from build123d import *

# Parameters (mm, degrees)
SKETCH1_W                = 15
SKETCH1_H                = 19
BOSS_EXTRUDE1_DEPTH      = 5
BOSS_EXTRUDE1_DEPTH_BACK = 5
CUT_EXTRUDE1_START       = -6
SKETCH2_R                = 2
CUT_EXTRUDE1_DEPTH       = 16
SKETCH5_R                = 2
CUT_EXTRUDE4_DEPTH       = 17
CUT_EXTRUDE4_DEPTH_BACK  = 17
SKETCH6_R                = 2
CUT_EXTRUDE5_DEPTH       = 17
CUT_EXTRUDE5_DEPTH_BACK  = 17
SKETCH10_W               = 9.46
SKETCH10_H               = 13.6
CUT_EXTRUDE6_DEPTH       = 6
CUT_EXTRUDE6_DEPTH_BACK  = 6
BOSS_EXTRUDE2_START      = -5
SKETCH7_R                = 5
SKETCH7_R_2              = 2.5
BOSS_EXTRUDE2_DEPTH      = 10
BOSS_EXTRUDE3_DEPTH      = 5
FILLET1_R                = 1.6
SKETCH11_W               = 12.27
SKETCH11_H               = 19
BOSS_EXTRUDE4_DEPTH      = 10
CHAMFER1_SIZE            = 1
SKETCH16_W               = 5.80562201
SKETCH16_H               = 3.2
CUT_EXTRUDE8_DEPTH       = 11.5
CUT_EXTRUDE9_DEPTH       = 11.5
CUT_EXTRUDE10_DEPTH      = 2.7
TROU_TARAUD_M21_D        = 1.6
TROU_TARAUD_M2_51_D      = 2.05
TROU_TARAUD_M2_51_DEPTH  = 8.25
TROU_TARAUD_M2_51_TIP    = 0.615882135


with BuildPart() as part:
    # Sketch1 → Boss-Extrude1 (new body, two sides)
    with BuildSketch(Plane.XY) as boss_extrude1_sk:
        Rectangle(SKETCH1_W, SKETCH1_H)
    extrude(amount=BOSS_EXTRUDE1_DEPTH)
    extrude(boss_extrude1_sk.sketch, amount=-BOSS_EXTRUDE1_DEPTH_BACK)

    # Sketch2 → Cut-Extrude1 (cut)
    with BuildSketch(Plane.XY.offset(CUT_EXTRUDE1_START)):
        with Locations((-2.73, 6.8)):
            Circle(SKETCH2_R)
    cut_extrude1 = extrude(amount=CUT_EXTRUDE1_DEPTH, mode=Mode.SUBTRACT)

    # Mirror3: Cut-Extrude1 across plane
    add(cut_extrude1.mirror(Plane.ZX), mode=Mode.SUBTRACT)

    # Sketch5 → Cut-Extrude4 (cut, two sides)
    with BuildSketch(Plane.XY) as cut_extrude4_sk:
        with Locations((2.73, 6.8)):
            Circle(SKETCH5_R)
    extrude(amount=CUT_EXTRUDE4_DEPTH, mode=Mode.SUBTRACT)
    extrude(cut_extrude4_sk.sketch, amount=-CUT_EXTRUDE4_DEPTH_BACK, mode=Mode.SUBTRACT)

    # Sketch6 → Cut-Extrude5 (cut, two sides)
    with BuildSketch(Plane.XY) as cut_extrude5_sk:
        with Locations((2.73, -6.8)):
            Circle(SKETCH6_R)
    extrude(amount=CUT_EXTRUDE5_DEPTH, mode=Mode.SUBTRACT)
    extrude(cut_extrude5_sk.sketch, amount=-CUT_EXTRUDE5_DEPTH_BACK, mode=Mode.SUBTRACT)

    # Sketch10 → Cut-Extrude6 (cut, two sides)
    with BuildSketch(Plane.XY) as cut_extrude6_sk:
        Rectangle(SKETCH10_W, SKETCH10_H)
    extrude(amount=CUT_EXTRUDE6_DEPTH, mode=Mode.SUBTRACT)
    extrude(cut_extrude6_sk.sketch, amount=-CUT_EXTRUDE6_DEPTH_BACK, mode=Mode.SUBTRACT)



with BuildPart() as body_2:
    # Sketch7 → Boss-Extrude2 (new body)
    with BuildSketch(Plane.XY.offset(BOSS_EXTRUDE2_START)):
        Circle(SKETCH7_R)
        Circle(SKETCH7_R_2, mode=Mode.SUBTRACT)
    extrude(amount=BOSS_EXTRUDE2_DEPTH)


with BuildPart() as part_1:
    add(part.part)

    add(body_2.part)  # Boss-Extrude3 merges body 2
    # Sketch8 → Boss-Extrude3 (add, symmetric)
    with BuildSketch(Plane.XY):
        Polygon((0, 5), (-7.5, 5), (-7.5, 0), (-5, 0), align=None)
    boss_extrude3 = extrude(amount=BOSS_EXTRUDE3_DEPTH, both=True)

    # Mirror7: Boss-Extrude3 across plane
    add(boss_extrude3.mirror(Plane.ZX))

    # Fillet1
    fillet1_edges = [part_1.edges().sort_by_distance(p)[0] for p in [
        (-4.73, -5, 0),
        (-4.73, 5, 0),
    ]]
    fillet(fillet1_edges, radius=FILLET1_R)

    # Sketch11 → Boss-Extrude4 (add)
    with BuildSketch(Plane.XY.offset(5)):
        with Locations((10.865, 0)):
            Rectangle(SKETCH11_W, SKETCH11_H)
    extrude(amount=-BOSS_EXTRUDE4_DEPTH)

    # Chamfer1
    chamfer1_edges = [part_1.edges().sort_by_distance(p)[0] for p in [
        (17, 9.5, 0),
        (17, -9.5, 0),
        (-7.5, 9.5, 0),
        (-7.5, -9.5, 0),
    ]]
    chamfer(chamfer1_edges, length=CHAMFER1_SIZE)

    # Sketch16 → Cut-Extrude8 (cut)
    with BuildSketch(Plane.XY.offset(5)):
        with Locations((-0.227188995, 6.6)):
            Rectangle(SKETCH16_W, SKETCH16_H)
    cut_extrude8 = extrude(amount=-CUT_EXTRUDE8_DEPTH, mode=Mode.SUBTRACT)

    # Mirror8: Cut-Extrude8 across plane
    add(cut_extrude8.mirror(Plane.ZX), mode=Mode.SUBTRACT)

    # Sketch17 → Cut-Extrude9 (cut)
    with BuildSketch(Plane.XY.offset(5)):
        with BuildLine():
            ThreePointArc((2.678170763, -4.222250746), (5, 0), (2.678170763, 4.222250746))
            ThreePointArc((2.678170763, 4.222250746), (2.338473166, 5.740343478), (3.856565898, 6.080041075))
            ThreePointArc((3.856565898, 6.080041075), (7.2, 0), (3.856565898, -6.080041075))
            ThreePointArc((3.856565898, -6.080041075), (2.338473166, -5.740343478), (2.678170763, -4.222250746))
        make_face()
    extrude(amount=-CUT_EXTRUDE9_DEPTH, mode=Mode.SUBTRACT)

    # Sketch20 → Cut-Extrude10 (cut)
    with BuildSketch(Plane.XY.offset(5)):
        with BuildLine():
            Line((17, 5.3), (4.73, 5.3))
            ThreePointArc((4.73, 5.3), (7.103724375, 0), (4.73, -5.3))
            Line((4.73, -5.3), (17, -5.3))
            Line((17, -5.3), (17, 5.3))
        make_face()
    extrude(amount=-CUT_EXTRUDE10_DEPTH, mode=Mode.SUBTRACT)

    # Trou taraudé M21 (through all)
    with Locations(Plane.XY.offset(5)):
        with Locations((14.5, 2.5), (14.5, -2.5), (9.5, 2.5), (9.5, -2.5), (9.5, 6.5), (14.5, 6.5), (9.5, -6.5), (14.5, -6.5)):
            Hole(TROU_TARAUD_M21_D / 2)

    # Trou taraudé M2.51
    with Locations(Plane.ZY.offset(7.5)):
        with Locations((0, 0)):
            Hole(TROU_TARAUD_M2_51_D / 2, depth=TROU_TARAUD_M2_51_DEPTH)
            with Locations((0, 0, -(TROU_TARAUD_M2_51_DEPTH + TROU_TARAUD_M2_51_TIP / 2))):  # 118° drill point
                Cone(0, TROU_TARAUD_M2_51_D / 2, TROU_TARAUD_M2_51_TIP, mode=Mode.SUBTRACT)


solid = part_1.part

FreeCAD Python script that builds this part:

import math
import FreeCAD as App
import Part
import Sketcher

V = App.Vector
Q = App.Units.Quantity


def edges_at(feature, points):
    """Names of the edges that pass closest to the given points."""
    edges = feature.Shape.Edges
    near = lambda p: min(range(len(edges)), key=lambda i: edges[i].distToShape(Part.Vertex(*p))[0])
    return sorted({f"Edge{near(p) + 1}" for p in points})

doc = App.newDocument("Part")
body = doc.addObject("PartDesign::Body", "Body")

sketch1 = body.newObject("Sketcher::SketchObject", "Sketch")
sketch1.AttachmentSupport = (doc.getObject("XY_Plane"), [""])
sketch1.MapMode = "FlatFace"
sketch1.addGeometry([
    Part.LineSegment(V(-8, 10, 0), V(-8, -10, 0)),
    Part.LineSegment(V(-8, -10, 0), V(8, -10, 0)),
    Part.LineSegment(V(8, -10, 0), V(8, 10, 0)),
    Part.LineSegment(V(8, 10, 0), V(-8, 10, 0)),
], False)
sketch1.addConstraint([
    Sketcher.Constraint("Coincident", 0, 2, 1, 1),
    Sketcher.Constraint("Coincident", 1, 2, 2, 1),
    Sketcher.Constraint("Coincident", 2, 2, 3, 1),
    Sketcher.Constraint("Coincident", 3, 2, 0, 1),
    Sketcher.Constraint("Vertical", 0),
    Sketcher.Constraint("Horizontal", 1),
    Sketcher.Constraint("Vertical", 2),
    Sketcher.Constraint("Horizontal", 3),
    Sketcher.Constraint("Symmetric", 0, 2, 2, 2, -1, 1),
    Sketcher.Constraint("DistanceX", 1, 1, 1, 2, 15.0),
    Sketcher.Constraint("DistanceY", 0, 2, 0, 1, 19.0),
])
pad1 = body.newObject("PartDesign::Pad", "Pad")
pad1.Profile = sketch1
pad1.Type = "TwoLengths"
pad1.Length = 5
pad1.Length2 = 5

sketch2 = body.newObject("Sketcher::SketchObject", "Sketch001")
sketch2.AttachmentSupport = (doc.getObject("XY_Plane"), [""])
sketch2.MapMode = "FlatFace"
sketch2.AttachmentOffset = App.Placement(V(0, 0, -6), App.Rotation())
sketch2.addGeometry(Part.Circle(V(-2.7, 6.8, 0), V(0, 0, 1), 2), False)
sketch2.addConstraint([
    Sketcher.Constraint("Diameter", 0, 4.0),
    Sketcher.Constraint("DistanceY", -1, 1, 0, 3, 6.8),
    Sketcher.Constraint("DistanceX", 0, 3, -1, 1, 2.73),
])
pocket1 = body.newObject("PartDesign::Pocket", "Pocket")
pocket1.Profile = sketch2
pocket1.Length = 16
pocket1.Reversed = True
doc.recompute()

mirrored = body.newObject("PartDesign::Mirrored", "Mirrored")
mirrored.Originals = [pocket1]
mirrored.MirrorPlane = (doc.getObject("XZ_Plane"), [""])
body.Tip = mirrored

sketch3 = body.newObject("Sketcher::SketchObject", "Sketch002")
sketch3.AttachmentSupport = (doc.getObject("XY_Plane"), [""])
sketch3.MapMode = "FlatFace"
sketch3.addGeometry(Part.Circle(V(2.7, 6.8, 0), V(0, 0, 1), 2), False)
sketch3.addConstraint([
    Sketcher.Constraint("Diameter", 0, 4.0),
    Sketcher.Constraint("DistanceY", -1, 1, 0, 3, 6.8),
    Sketcher.Constraint("DistanceX", -1, 1, 0, 3, 2.73),
])
pocket2 = body.newObject("PartDesign::Pocket", "Pocket001")
pocket2.Profile = sketch3
pocket2.Type = "ThroughAll"
pocket2.Midplane = True

sketch4 = body.newObject("Sketcher::SketchObject", "Sketch003")
sketch4.AttachmentSupport = (doc.getObject("XY_Plane"), [""])
sketch4.MapMode = "FlatFace"
sketch4.addGeometry(Part.Circle(V(2.7, -6.8, 0), V(0, 0, 1), 2), False)
sketch4.addConstraint([
    Sketcher.Constraint("Diameter", 0, 4.0),
    Sketcher.Constraint("DistanceY", 0, 3, -1, 1, 6.8),
    Sketcher.Constraint("DistanceX", -1, 1, 0, 3, 2.73),
])
pocket3 = body.newObject("PartDesign::Pocket", "Pocket002")
pocket3.Profile = sketch4
pocket3.Type = "ThroughAll"
pocket3.Midplane = True

sketch5 = body.newObject("Sketcher::SketchObject", "Sketch004")
sketch5.AttachmentSupport = (doc.getObject("XY_Plane"), [""])
sketch5.MapMode = "FlatFace"
sketch5.addGeometry([
    Part.LineSegment(V(-5, 7, 0), V(-5, -7, 0)),
    Part.LineSegment(V(-5, -7, 0), V(5, -7, 0)),
    Part.LineSegment(V(5, -7, 0), V(5, 7, 0)),
    Part.LineSegment(V(5, 7, 0), V(-5, 7, 0)),
], False)
sketch5.addConstraint([
    Sketcher.Constraint("Coincident", 0, 2, 1, 1),
    Sketcher.Constraint("Coincident", 1, 2, 2, 1),
    Sketcher.Constraint("Coincident", 2, 2, 3, 1),
    Sketcher.Constraint("Coincident", 3, 2, 0, 1),
    Sketcher.Constraint("Vertical", 0),
    Sketcher.Constraint("Horizontal", 1),
    Sketcher.Constraint("Vertical", 2),
    Sketcher.Constraint("Horizontal", 3),
    Sketcher.Constraint("Symmetric", 0, 2, 2, 2, -1, 1),
    Sketcher.Constraint("DistanceY", 0, 2, 0, 1, 13.6),
    Sketcher.Constraint("DistanceX", 1, 1, 1, 2, 9.46),
])
pocket4 = body.newObject("PartDesign::Pocket", "Pocket003")
pocket4.Profile = sketch5
pocket4.Type = "ThroughAll"
pocket4.Midplane = True
body2 = doc.addObject("PartDesign::Body", "Body001")

sketch6 = body2.newObject("Sketcher::SketchObject", "Sketch005")
sketch6.AttachmentSupport = (doc.getObject("XY_Plane001"), [""])
sketch6.MapMode = "FlatFace"
sketch6.AttachmentOffset = App.Placement(V(0, 0, -5), App.Rotation())
sketch6.addGeometry([
    Part.Circle(V(0, 0, 0), V(0, 0, 1), 5),
    Part.Circle(V(0, 0, 0), V(0, 0, 1), 2.5),
], False)
sketch6.addConstraint([
    Sketcher.Constraint("Coincident", 0, 3, -1, 1),
    Sketcher.Constraint("Coincident", 1, 3, -1, 1),
    Sketcher.Constraint("Diameter", 0, 10.0),
    Sketcher.Constraint("Diameter", 1, 5.0),
])
pad2 = body2.newObject("PartDesign::Pad", "Pad001")
pad2.Profile = sketch6
pad2.Length = 10
doc.recompute()

boolean = body.newObject("PartDesign::Boolean", "Boolean")
boolean.Type = "Fuse"
boolean.addObjects([body2])

sketch7 = body.newObject("Sketcher::SketchObject", "Sketch006")
sketch7.AttachmentSupport = (doc.getObject("XY_Plane"), [""])
sketch7.MapMode = "FlatFace"
sketch7.addGeometry([
    Part.LineSegment(V(0, 5, 0), V(-7.5, 5, 0)),
    Part.LineSegment(V(-7.5, 5, 0), V(-7.5, 0, 0)),
    Part.LineSegment(V(-7.5, 0, 0), V(-5, 0, 0)),
    Part.LineSegment(V(-5, 0, 0), V(0, 5, 0)),
], False)
sketch7.addConstraint([
    Sketcher.Constraint("Coincident", 0, 2, 1, 1),
    Sketcher.Constraint("Coincident", 1, 2, 2, 1),
    Sketcher.Constraint("Coincident", 2, 2, 3, 1),
    Sketcher.Constraint("Coincident", 3, 2, 0, 1),
    Sketcher.Constraint("Horizontal", 0),
    Sketcher.Constraint("Vertical", 1),
    Sketcher.Constraint("Horizontal", 2),
    Sketcher.Constraint("PointOnObject", 1, 2, -1),
    Sketcher.Constraint("PointOnObject", 3, 2, -2),
    Sketcher.Constraint("DistanceY", 1, 2, 1, 1, 5.0),
    Sketcher.Constraint("Angle", 3, Q("45 deg")),
    Sketcher.Constraint("DistanceX", 0, 2, 0, 1, 7.5),
])
pad3 = body.newObject("PartDesign::Pad", "Pad002")
pad3.Profile = sketch7
pad3.Length = 10
pad3.Midplane = True
doc.recompute()

mirrored2 = body.newObject("PartDesign::Mirrored", "Mirrored001")
mirrored2.Originals = [pad3]
mirrored2.MirrorPlane = (doc.getObject("XZ_Plane"), [""])
body.Tip = mirrored2
doc.recompute()

fillet = body.newObject("PartDesign::Fillet", "Fillet")
fillet.Base = (mirrored2, edges_at(mirrored2, [(-4.73, -5, 0), (-4.73, 5, 0)]))
fillet.Radius = 1.6

sketch8 = body.newObject("Sketcher::SketchObject", "Sketch007")
sketch8.AttachmentSupport = (doc.getObject("XY_Plane"), [""])
sketch8.MapMode = "FlatFace"
sketch8.AttachmentOffset = App.Placement(V(0, 0, 5), App.Rotation())
sketch8.addGeometry([
    Part.LineSegment(V(5, 10, 0), V(5, -10, 0)),
    Part.LineSegment(V(5, -10, 0), V(17, -10, 0)),
    Part.LineSegment(V(17, -10, 0), V(17, 10, 0)),
    Part.LineSegment(V(17, 10, 0), V(5, 10, 0)),
], False)
sketch8.addConstraint([
    Sketcher.Constraint("Coincident", 0, 2, 1, 1),
    Sketcher.Constraint("Coincident", 1, 2, 2, 1),
    Sketcher.Constraint("Coincident", 2, 2, 3, 1),
    Sketcher.Constraint("Coincident", 3, 2, 0, 1),
    Sketcher.Constraint("Vertical", 0),
    Sketcher.Constraint("Horizontal", 1),
    Sketcher.Constraint("Vertical", 2),
    Sketcher.Constraint("Horizontal", 3),
    Sketcher.Constraint("DistanceY", 0, 2, 0, 1, 19.0),
    Sketcher.Constraint("DistanceX", -1, 1, 1, 2, 17.0),
    Sketcher.Constraint("DistanceX", 1, 1, 1, 2, 12.27),
    Sketcher.Constraint("DistanceY", 0, 2, -1, 1, 9.5),
])
pad4 = body.newObject("PartDesign::Pad", "Pad003")
pad4.Profile = sketch8
pad4.Length = 10
pad4.Reversed = True
doc.recompute()

chamfer = body.newObject("PartDesign::Chamfer", "Chamfer")
chamfer.Base = (pad4, edges_at(pad4, [
    (17, 9.5, 0),
    (17, -9.5, 0),
    (-7.5, 9.5, 0),
    (-7.5, -9.5, 0),
]))
chamfer.Size = 1

sketch9 = body.newObject("Sketcher::SketchObject", "Sketch008")
sketch9.AttachmentSupport = (doc.getObject("XY_Plane"), [""])
sketch9.MapMode = "FlatFace"
sketch9.AttachmentOffset = App.Placement(V(0, 0, 5), App.Rotation())
sketch9.addGeometry([
    Part.LineSegment(V(-3.1, 8.2, 0), V(-3.1, 5, 0)),
    Part.LineSegment(V(-3.1, 5, 0), V(2.7, 5, 0)),
    Part.LineSegment(V(2.7, 5, 0), V(2.7, 8.2, 0)),
    Part.LineSegment(V(2.7, 8.2, 0), V(-3.1, 8.2, 0)),
], False)
sketch9.addConstraint([
    Sketcher.Constraint("Coincident", 0, 2, 1, 1),
    Sketcher.Constraint("Coincident", 1, 2, 2, 1),
    Sketcher.Constraint("Coincident", 2, 2, 3, 1),
    Sketcher.Constraint("Coincident", 3, 2, 0, 1),
    Sketcher.Constraint("Vertical", 0),
    Sketcher.Constraint("Horizontal", 1),
    Sketcher.Constraint("Vertical", 2),
    Sketcher.Constraint("Horizontal", 3),
    Sketcher.Constraint("DistanceY", 0, 2, 0, 1, 3.2),
    Sketcher.Constraint("DistanceY", -1, 1, 0, 2, 5.0),
    Sketcher.Constraint("DistanceX", 0, 2, -1, 1, 3.13),
    Sketcher.Constraint("DistanceX", 1, 1, 1, 2, 5.805622),
])
pocket5 = body.newObject("PartDesign::Pocket", "Pocket004")
pocket5.Profile = sketch9
pocket5.Length = 11.5
doc.recompute()

mirrored3 = body.newObject("PartDesign::Mirrored", "Mirrored002")
mirrored3.Originals = [pocket5]
mirrored3.MirrorPlane = (doc.getObject("XZ_Plane"), [""])
body.Tip = mirrored3

sketch10 = body.newObject("Sketcher::SketchObject", "Sketch009")
sketch10.AttachmentSupport = (doc.getObject("XY_Plane"), [""])
sketch10.MapMode = "FlatFace"
sketch10.AttachmentOffset = App.Placement(V(0, 0, 5), App.Rotation())
sketch10.addGeometry([
    Part.ArcOfCircle(Part.Circle(V(0, 0, 0), V(0, 0, 1), 5), math.radians(-58), math.radians(58)),
    Part.ArcOfCircle(Part.Circle(V(3.3, -5.2, 0), V(0, 0, 1), 1.1), math.radians(122), math.radians(302)),
    Part.ArcOfCircle(Part.Circle(V(0, 0, 0), V(0, 0, 1), 7.2), math.radians(-58), math.radians(58)),
    Part.ArcOfCircle(Part.Circle(V(3.3, 5.2, 0), V(0, 0, 1), 1.1), math.radians(58), math.radians(238)),
], False)
sketch10.addConstraint([
    Sketcher.Constraint("Tangent", 0, 1, 1, 1),
    Sketcher.Constraint("Tangent", 1, 2, 2, 1),
    Sketcher.Constraint("Tangent", 2, 2, 3, 1),
    Sketcher.Constraint("Tangent", 3, 2, 0, 2),
    Sketcher.Constraint("Coincident", 0, 3, -1, 1),
    Sketcher.Constraint("Coincident", 2, 3, -1, 1),
    Sketcher.Constraint("Vertical", 1, 3, 3, 3),
    Sketcher.Constraint("Radius", 0, 5.0),
    Sketcher.Constraint("Radius", 1, 1.1),
    Sketcher.Constraint("DistanceY", 0, 1, 3, 2, 8.444501),
])
pocket6 = body.newObject("PartDesign::Pocket", "Pocket005")
pocket6.Profile = sketch10
pocket6.Length = 11.5

sketch11 = body.newObject("Sketcher::SketchObject", "Sketch010")
sketch11.AttachmentSupport = (doc.getObject("XY_Plane"), [""])
sketch11.MapMode = "FlatFace"
sketch11.AttachmentOffset = App.Placement(V(0, 0, 5), App.Rotation())
sketch11.addGeometry([
    Part.LineSegment(V(17, 5, 0), V(5, 5, 0)),
    Part.ArcOfCircle(Part.Circle(V(0, 0, 0), V(0, 0, 1), 7), math.radians(-48), math.radians(48)),
    Part.LineSegment(V(5, -5, 0), V(17, -5, 0)),
    Part.LineSegment(V(17, -5, 0), V(17, 5, 0)),
], False)
sketch11.addConstraint([
    Sketcher.Constraint("Coincident", 0, 2, 1, 2),
    Sketcher.Constraint("Coincident", 1, 1, 2, 1),
    Sketcher.Constraint("Coincident", 2, 2, 3, 1),
    Sketcher.Constraint("Coincident", 3, 2, 0, 1),
    Sketcher.Constraint("Horizontal", 0),
    Sketcher.Constraint("Horizontal", 2),
    Sketcher.Constraint("Vertical", 3),
    Sketcher.Constraint("Coincident", 1, 3, -1, 1),
    Sketcher.Constraint("Vertical", 0, 2, 1, 1),
    Sketcher.Constraint("DistanceY", 3, 1, 3, 2, 10.6),
    Sketcher.Constraint("DistanceX", -1, 1, 2, 2, 17.0),
    Sketcher.Constraint("DistanceX", 0, 2, 0, 1, 12.27),
])
pocket7 = body.newObject("PartDesign::Pocket", "Pocket006")
pocket7.Profile = sketch11
pocket7.Length = 2.7

sketch12 = body.newObject("Sketcher::SketchObject", "Sketch011")
sketch12.AttachmentSupport = (doc.getObject("XY_Plane"), [""])
sketch12.MapMode = "FlatFace"
sketch12.AttachmentOffset = App.Placement(V(0, 0, 5), App.Rotation())
sketch12.addGeometry([
    Part.Circle(V(14.5, 2.5, 0), V(0, 0, 1), 0.8),
    Part.Circle(V(14.5, -2.5, 0), V(0, 0, 1), 0.8),
    Part.Circle(V(9.5, 2.5, 0), V(0, 0, 1), 0.8),
    Part.Circle(V(9.5, -2.5, 0), V(0, 0, 1), 0.8),
    Part.Circle(V(9.5, 6.5, 0), V(0, 0, 1), 0.8),
    Part.Circle(V(14.5, 6.5, 0), V(0, 0, 1), 0.8),
    Part.Circle(V(9.5, -6.5, 0), V(0, 0, 1), 0.8),
    Part.Circle(V(14.5, -6.5, 0), V(0, 0, 1), 0.8),
], False)
sketch12.addConstraint([
    Sketcher.Constraint("Equal", 0, 1),
    Sketcher.Constraint("Equal", 1, 2),
    Sketcher.Constraint("Equal", 2, 3),
    Sketcher.Constraint("Equal", 3, 4),
    Sketcher.Constraint("Equal", 4, 5),
    Sketcher.Constraint("Equal", 5, 6),
    Sketcher.Constraint("Equal", 6, 7),
    Sketcher.Constraint("Symmetric", 0, 3, 1, 3, -1),
    Sketcher.Constraint("Symmetric", 2, 3, 3, 3, -1),
    Sketcher.Constraint("Symmetric", 4, 3, 6, 3, -1),
    Sketcher.Constraint("Symmetric", 5, 3, 7, 3, -1),
    Sketcher.Constraint("Horizontal", 0, 3, 2, 3),
    Sketcher.Constraint("Horizontal", 4, 3, 5, 3),
    Sketcher.Constraint("Vertical", 3, 3, 4, 3),
    Sketcher.Constraint("Vertical", 1, 3, 5, 3),
    Sketcher.Constraint("Diameter", 0, 1.6),
    Sketcher.Constraint("DistanceY", 1, 3, 0, 3, 5.0),
    Sketcher.Constraint("DistanceX", 2, 3, 0, 3, 5.0),
    Sketcher.Constraint("DistanceY", 2, 3, 4, 3, 4.0),
    Sketcher.Constraint("DistanceX", -1, 1, 0, 3, 14.5),
])
doc.recompute()
hole = body.newObject("PartDesign::Hole", "Hole")
hole.Profile = sketch12
hole.ThreadType = "None"
hole.Diameter = 1.6
hole.DepthType = "ThroughAll"

sketch13 = body.newObject("Sketcher::SketchObject", "Sketch012")
sketch13.AttachmentSupport = (doc.getObject("YZ_Plane"), [""])
sketch13.MapMode = "FlatFace"
sketch13.AttachmentOffset = App.Placement(V(0, 0, -7.5), App.Rotation())
sketch13.addGeometry(Part.Circle(V(0, 0, 0), V(0, 0, 1), 1), False)
sketch13.addConstraint([
    Sketcher.Constraint("Coincident", 0, 3, -1, 1),
    Sketcher.Constraint("Diameter", 0, 2.05),
])
doc.recompute()
hole2 = body.newObject("PartDesign::Hole", "Hole001")
hole2.Profile = sketch13
hole2.ThreadType = "None"
hole2.Diameter = 2.05
hole2.DepthType = "Dimension"
hole2.Depth = 8.25
hole2.DrillPoint = "Angled"
hole2.DrillPointAngle = 118
hole2.Reversed = True

doc.recompute()
